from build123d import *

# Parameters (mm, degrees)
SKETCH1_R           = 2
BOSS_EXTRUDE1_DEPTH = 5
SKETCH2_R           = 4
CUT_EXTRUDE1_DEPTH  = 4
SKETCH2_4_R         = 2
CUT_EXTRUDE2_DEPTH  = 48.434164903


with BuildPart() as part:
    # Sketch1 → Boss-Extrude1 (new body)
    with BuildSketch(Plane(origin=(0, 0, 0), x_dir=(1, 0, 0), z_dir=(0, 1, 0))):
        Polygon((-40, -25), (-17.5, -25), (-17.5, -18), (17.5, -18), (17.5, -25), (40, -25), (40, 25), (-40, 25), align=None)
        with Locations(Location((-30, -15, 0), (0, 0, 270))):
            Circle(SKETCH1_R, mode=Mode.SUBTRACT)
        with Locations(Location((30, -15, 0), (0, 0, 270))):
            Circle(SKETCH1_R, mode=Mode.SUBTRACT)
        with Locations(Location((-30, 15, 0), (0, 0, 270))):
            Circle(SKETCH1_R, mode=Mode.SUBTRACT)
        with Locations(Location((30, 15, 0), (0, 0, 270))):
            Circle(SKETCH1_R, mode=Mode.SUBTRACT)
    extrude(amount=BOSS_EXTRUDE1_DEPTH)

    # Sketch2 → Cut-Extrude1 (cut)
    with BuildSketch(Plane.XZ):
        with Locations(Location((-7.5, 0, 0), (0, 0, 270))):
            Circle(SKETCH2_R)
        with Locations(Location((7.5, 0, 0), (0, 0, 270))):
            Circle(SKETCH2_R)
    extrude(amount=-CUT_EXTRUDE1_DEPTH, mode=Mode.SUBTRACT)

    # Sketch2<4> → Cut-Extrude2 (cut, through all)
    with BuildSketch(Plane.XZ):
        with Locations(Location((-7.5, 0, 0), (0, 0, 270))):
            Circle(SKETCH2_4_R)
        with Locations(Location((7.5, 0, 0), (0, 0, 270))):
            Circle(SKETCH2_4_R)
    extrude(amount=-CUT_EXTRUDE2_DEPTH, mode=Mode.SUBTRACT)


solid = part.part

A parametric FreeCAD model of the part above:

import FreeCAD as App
import Part
import Sketcher

V = App.Vector
Q = App.Units.Quantity


def add_polygon(sketch, points):
    """Adds a closed chain of lines whose ends are joined by coincident constraints."""
    first, n = sketch.GeometryCount, len(points)
    for a, b in zip(points, points[1:] + points[:1]):
        sketch.addGeometry(Part.LineSegment(App.Vector(*a, 0), App.Vector(*b, 0)), False)
    for i in range(n):
        sketch.addConstraint(Sketcher.Constraint("Coincident", first + i, 2, first + (i + 1) % n, 1))

doc = App.newDocument("Part")
body = doc.addObject("PartDesign::Body", "Body")

sketch1 = body.newObject("Sketcher::SketchObject", "Sketch")
sketch1.AttachmentSupport = (doc.getObject("XZ_Plane"), [""])
sketch1.MapMode = "FlatFace"
add_polygon(sketch1, [(-40, 25), (-17.5, 25), (-17.5, 18), (17.5, 18), (17.5, 25), (40, 25), (40, -25), (-40, -25)])
sketch1.addGeometry(Part.Circle(V(-30, 15, 0), V(0, 0, 1), 2), False)
sketch1.addGeometry(Part.Circle(V(30, 15, 0), V(0, 0, 1), 2), False)
sketch1.addGeometry(Part.Circle(V(-30, -15, 0), V(0, 0, 1), 2), False)
sketch1.addGeometry(Part.Circle(V(30, -15, 0), V(0, 0, 1), 2), False)
sketch1.addConstraint(Sketcher.Constraint("Horizontal", 0))
sketch1.addConstraint(Sketcher.Constraint("Vertical", 1))
sketch1.addConstraint(Sketcher.Constraint("Horizontal", 2))
sketch1.addConstraint(Sketcher.Constraint("Vertical", 3))
sketch1.addConstraint(Sketcher.Constraint("Horizontal", 4))
sketch1.addConstraint(Sketcher.Constraint("Vertical", 5))
sketch1.addConstraint(Sketcher.Constraint("Horizontal", 6))
sketch1.addConstraint(Sketcher.Constraint("Vertical", 7))
sketch1.addConstraint(Sketcher.Constraint("Equal", 8, 9))
sketch1.addConstraint(Sketcher.Constraint("Equal", 9, 10))
sketch1.addConstraint(Sketcher.Constraint("Equal", 10, 11))
sketch1.addConstraint(Sketcher.Constraint("Symmetric", 9, 3, 10, 3, -1, 1))
sketch1.addConstraint(Sketcher.Constraint("Symmetric", 8, 3, 11, 3, -1, 1))
sketch1.addConstraint(Sketcher.Constraint("Symmetric", 4, 2, 6, 2, -1, 1))
sketch1.addConstraint(Sketcher.Constraint("Symmetric", 8, 3, 9, 3, -2))
sketch1.addConstraint(Sketcher.Constraint("Symmetric", 0, 2, 3, 2, -2))
sketch1.addConstraint(Sketcher.Constraint("Diameter", 8, Q("4 mm")))
sketch1.addConstraint(Sketcher.Constraint("DistanceX", 2, 1, 2, 2, Q("35 mm")))
sketch1.addConstraint(Sketcher.Constraint("DistanceX", 6, 2, 6, 1, Q("80 mm")))
sketch1.addConstraint(Sketcher.Constraint("DistanceY", 1, 2, 1, 1, Q("7 mm")))
sketch1.addConstraint(Sketcher.Constraint("DistanceY", 5, 2, 5, 1, Q("50 mm")))
sketch1.addConstraint(Sketcher.Constraint("DistanceX", 8, 3, -1, 1, Q("30 mm")))
sketch1.addConstraint(Sketcher.Constraint("DistanceY", -1, 1, 8, 3, Q("15 mm")))
pad1 = body.newObject("PartDesign::Pad", "Pad")
pad1.Profile = sketch1
pad1.Length = 5
pad1.Reversed = True

sketch2 = body.newObject("Sketcher::SketchObject", "Sketch001")
sketch2.AttachmentSupport = (doc.getObject("XZ_Plane"), [""])
sketch2.MapMode = "FlatFace"
sketch2.addGeometry(Part.Circle(V(-7.5, 0, 0), V(0, 0, 1), 4), False)
sketch2.addGeometry(Part.Circle(V(7.5, 0, 0), V(0, 0, 1), 4), False)
sketch2.addConstraint(Sketcher.Constraint("Equal", 0, 1))
sketch2.addConstraint(Sketcher.Constraint("Symmetric", 0, 3, 1, 3, -1, 1))
sketch2.addConstraint(Sketcher.Constraint("PointOnObject", 0, 3, -1))
sketch2.addConstraint(Sketcher.Constraint("Diameter", 0, Q("8 mm")))
sketch2.addConstraint(Sketcher.Constraint("DistanceX", 0, 3, 1, 3, Q("15 mm")))
pocket1 = body.newObject("PartDesign::Pocket", "Pocket")
pocket1.Profile = sketch2
pocket1.Length = 4

sketch3 = body.newObject("Sketcher::SketchObject", "Sketch002")
sketch3.AttachmentSupport = (doc.getObject("XZ_Plane"), [""])
sketch3.MapMode = "FlatFace"
sketch3.addGeometry(Part.Circle(V(-7.5, 0, 0), V(0, 0, 1), 2), False)
sketch3.addGeometry(Part.Circle(V(7.5, 0, 0), V(0, 0, 1), 2), False)
sketch3.addConstraint(Sketcher.Constraint("Equal", 0, 1))
sketch3.addConstraint(Sketcher.Constraint("Symmetric", 0, 3, 1, 3, -1, 1))
sketch3.addConstraint(Sketcher.Constraint("PointOnObject", 0, 3, -1))
sketch3.addConstraint(Sketcher.Constraint("Diameter", 0, Q("4 mm")))
sketch3.addConstraint(Sketcher.Constraint("DistanceX", 0, 3, 1, 3, Q("15 mm")))
pocket2 = body.newObject("PartDesign::Pocket", "Pocket001")
pocket2.Profile = sketch3
pocket2.Type = "ThroughAll"

doc.recompute()
